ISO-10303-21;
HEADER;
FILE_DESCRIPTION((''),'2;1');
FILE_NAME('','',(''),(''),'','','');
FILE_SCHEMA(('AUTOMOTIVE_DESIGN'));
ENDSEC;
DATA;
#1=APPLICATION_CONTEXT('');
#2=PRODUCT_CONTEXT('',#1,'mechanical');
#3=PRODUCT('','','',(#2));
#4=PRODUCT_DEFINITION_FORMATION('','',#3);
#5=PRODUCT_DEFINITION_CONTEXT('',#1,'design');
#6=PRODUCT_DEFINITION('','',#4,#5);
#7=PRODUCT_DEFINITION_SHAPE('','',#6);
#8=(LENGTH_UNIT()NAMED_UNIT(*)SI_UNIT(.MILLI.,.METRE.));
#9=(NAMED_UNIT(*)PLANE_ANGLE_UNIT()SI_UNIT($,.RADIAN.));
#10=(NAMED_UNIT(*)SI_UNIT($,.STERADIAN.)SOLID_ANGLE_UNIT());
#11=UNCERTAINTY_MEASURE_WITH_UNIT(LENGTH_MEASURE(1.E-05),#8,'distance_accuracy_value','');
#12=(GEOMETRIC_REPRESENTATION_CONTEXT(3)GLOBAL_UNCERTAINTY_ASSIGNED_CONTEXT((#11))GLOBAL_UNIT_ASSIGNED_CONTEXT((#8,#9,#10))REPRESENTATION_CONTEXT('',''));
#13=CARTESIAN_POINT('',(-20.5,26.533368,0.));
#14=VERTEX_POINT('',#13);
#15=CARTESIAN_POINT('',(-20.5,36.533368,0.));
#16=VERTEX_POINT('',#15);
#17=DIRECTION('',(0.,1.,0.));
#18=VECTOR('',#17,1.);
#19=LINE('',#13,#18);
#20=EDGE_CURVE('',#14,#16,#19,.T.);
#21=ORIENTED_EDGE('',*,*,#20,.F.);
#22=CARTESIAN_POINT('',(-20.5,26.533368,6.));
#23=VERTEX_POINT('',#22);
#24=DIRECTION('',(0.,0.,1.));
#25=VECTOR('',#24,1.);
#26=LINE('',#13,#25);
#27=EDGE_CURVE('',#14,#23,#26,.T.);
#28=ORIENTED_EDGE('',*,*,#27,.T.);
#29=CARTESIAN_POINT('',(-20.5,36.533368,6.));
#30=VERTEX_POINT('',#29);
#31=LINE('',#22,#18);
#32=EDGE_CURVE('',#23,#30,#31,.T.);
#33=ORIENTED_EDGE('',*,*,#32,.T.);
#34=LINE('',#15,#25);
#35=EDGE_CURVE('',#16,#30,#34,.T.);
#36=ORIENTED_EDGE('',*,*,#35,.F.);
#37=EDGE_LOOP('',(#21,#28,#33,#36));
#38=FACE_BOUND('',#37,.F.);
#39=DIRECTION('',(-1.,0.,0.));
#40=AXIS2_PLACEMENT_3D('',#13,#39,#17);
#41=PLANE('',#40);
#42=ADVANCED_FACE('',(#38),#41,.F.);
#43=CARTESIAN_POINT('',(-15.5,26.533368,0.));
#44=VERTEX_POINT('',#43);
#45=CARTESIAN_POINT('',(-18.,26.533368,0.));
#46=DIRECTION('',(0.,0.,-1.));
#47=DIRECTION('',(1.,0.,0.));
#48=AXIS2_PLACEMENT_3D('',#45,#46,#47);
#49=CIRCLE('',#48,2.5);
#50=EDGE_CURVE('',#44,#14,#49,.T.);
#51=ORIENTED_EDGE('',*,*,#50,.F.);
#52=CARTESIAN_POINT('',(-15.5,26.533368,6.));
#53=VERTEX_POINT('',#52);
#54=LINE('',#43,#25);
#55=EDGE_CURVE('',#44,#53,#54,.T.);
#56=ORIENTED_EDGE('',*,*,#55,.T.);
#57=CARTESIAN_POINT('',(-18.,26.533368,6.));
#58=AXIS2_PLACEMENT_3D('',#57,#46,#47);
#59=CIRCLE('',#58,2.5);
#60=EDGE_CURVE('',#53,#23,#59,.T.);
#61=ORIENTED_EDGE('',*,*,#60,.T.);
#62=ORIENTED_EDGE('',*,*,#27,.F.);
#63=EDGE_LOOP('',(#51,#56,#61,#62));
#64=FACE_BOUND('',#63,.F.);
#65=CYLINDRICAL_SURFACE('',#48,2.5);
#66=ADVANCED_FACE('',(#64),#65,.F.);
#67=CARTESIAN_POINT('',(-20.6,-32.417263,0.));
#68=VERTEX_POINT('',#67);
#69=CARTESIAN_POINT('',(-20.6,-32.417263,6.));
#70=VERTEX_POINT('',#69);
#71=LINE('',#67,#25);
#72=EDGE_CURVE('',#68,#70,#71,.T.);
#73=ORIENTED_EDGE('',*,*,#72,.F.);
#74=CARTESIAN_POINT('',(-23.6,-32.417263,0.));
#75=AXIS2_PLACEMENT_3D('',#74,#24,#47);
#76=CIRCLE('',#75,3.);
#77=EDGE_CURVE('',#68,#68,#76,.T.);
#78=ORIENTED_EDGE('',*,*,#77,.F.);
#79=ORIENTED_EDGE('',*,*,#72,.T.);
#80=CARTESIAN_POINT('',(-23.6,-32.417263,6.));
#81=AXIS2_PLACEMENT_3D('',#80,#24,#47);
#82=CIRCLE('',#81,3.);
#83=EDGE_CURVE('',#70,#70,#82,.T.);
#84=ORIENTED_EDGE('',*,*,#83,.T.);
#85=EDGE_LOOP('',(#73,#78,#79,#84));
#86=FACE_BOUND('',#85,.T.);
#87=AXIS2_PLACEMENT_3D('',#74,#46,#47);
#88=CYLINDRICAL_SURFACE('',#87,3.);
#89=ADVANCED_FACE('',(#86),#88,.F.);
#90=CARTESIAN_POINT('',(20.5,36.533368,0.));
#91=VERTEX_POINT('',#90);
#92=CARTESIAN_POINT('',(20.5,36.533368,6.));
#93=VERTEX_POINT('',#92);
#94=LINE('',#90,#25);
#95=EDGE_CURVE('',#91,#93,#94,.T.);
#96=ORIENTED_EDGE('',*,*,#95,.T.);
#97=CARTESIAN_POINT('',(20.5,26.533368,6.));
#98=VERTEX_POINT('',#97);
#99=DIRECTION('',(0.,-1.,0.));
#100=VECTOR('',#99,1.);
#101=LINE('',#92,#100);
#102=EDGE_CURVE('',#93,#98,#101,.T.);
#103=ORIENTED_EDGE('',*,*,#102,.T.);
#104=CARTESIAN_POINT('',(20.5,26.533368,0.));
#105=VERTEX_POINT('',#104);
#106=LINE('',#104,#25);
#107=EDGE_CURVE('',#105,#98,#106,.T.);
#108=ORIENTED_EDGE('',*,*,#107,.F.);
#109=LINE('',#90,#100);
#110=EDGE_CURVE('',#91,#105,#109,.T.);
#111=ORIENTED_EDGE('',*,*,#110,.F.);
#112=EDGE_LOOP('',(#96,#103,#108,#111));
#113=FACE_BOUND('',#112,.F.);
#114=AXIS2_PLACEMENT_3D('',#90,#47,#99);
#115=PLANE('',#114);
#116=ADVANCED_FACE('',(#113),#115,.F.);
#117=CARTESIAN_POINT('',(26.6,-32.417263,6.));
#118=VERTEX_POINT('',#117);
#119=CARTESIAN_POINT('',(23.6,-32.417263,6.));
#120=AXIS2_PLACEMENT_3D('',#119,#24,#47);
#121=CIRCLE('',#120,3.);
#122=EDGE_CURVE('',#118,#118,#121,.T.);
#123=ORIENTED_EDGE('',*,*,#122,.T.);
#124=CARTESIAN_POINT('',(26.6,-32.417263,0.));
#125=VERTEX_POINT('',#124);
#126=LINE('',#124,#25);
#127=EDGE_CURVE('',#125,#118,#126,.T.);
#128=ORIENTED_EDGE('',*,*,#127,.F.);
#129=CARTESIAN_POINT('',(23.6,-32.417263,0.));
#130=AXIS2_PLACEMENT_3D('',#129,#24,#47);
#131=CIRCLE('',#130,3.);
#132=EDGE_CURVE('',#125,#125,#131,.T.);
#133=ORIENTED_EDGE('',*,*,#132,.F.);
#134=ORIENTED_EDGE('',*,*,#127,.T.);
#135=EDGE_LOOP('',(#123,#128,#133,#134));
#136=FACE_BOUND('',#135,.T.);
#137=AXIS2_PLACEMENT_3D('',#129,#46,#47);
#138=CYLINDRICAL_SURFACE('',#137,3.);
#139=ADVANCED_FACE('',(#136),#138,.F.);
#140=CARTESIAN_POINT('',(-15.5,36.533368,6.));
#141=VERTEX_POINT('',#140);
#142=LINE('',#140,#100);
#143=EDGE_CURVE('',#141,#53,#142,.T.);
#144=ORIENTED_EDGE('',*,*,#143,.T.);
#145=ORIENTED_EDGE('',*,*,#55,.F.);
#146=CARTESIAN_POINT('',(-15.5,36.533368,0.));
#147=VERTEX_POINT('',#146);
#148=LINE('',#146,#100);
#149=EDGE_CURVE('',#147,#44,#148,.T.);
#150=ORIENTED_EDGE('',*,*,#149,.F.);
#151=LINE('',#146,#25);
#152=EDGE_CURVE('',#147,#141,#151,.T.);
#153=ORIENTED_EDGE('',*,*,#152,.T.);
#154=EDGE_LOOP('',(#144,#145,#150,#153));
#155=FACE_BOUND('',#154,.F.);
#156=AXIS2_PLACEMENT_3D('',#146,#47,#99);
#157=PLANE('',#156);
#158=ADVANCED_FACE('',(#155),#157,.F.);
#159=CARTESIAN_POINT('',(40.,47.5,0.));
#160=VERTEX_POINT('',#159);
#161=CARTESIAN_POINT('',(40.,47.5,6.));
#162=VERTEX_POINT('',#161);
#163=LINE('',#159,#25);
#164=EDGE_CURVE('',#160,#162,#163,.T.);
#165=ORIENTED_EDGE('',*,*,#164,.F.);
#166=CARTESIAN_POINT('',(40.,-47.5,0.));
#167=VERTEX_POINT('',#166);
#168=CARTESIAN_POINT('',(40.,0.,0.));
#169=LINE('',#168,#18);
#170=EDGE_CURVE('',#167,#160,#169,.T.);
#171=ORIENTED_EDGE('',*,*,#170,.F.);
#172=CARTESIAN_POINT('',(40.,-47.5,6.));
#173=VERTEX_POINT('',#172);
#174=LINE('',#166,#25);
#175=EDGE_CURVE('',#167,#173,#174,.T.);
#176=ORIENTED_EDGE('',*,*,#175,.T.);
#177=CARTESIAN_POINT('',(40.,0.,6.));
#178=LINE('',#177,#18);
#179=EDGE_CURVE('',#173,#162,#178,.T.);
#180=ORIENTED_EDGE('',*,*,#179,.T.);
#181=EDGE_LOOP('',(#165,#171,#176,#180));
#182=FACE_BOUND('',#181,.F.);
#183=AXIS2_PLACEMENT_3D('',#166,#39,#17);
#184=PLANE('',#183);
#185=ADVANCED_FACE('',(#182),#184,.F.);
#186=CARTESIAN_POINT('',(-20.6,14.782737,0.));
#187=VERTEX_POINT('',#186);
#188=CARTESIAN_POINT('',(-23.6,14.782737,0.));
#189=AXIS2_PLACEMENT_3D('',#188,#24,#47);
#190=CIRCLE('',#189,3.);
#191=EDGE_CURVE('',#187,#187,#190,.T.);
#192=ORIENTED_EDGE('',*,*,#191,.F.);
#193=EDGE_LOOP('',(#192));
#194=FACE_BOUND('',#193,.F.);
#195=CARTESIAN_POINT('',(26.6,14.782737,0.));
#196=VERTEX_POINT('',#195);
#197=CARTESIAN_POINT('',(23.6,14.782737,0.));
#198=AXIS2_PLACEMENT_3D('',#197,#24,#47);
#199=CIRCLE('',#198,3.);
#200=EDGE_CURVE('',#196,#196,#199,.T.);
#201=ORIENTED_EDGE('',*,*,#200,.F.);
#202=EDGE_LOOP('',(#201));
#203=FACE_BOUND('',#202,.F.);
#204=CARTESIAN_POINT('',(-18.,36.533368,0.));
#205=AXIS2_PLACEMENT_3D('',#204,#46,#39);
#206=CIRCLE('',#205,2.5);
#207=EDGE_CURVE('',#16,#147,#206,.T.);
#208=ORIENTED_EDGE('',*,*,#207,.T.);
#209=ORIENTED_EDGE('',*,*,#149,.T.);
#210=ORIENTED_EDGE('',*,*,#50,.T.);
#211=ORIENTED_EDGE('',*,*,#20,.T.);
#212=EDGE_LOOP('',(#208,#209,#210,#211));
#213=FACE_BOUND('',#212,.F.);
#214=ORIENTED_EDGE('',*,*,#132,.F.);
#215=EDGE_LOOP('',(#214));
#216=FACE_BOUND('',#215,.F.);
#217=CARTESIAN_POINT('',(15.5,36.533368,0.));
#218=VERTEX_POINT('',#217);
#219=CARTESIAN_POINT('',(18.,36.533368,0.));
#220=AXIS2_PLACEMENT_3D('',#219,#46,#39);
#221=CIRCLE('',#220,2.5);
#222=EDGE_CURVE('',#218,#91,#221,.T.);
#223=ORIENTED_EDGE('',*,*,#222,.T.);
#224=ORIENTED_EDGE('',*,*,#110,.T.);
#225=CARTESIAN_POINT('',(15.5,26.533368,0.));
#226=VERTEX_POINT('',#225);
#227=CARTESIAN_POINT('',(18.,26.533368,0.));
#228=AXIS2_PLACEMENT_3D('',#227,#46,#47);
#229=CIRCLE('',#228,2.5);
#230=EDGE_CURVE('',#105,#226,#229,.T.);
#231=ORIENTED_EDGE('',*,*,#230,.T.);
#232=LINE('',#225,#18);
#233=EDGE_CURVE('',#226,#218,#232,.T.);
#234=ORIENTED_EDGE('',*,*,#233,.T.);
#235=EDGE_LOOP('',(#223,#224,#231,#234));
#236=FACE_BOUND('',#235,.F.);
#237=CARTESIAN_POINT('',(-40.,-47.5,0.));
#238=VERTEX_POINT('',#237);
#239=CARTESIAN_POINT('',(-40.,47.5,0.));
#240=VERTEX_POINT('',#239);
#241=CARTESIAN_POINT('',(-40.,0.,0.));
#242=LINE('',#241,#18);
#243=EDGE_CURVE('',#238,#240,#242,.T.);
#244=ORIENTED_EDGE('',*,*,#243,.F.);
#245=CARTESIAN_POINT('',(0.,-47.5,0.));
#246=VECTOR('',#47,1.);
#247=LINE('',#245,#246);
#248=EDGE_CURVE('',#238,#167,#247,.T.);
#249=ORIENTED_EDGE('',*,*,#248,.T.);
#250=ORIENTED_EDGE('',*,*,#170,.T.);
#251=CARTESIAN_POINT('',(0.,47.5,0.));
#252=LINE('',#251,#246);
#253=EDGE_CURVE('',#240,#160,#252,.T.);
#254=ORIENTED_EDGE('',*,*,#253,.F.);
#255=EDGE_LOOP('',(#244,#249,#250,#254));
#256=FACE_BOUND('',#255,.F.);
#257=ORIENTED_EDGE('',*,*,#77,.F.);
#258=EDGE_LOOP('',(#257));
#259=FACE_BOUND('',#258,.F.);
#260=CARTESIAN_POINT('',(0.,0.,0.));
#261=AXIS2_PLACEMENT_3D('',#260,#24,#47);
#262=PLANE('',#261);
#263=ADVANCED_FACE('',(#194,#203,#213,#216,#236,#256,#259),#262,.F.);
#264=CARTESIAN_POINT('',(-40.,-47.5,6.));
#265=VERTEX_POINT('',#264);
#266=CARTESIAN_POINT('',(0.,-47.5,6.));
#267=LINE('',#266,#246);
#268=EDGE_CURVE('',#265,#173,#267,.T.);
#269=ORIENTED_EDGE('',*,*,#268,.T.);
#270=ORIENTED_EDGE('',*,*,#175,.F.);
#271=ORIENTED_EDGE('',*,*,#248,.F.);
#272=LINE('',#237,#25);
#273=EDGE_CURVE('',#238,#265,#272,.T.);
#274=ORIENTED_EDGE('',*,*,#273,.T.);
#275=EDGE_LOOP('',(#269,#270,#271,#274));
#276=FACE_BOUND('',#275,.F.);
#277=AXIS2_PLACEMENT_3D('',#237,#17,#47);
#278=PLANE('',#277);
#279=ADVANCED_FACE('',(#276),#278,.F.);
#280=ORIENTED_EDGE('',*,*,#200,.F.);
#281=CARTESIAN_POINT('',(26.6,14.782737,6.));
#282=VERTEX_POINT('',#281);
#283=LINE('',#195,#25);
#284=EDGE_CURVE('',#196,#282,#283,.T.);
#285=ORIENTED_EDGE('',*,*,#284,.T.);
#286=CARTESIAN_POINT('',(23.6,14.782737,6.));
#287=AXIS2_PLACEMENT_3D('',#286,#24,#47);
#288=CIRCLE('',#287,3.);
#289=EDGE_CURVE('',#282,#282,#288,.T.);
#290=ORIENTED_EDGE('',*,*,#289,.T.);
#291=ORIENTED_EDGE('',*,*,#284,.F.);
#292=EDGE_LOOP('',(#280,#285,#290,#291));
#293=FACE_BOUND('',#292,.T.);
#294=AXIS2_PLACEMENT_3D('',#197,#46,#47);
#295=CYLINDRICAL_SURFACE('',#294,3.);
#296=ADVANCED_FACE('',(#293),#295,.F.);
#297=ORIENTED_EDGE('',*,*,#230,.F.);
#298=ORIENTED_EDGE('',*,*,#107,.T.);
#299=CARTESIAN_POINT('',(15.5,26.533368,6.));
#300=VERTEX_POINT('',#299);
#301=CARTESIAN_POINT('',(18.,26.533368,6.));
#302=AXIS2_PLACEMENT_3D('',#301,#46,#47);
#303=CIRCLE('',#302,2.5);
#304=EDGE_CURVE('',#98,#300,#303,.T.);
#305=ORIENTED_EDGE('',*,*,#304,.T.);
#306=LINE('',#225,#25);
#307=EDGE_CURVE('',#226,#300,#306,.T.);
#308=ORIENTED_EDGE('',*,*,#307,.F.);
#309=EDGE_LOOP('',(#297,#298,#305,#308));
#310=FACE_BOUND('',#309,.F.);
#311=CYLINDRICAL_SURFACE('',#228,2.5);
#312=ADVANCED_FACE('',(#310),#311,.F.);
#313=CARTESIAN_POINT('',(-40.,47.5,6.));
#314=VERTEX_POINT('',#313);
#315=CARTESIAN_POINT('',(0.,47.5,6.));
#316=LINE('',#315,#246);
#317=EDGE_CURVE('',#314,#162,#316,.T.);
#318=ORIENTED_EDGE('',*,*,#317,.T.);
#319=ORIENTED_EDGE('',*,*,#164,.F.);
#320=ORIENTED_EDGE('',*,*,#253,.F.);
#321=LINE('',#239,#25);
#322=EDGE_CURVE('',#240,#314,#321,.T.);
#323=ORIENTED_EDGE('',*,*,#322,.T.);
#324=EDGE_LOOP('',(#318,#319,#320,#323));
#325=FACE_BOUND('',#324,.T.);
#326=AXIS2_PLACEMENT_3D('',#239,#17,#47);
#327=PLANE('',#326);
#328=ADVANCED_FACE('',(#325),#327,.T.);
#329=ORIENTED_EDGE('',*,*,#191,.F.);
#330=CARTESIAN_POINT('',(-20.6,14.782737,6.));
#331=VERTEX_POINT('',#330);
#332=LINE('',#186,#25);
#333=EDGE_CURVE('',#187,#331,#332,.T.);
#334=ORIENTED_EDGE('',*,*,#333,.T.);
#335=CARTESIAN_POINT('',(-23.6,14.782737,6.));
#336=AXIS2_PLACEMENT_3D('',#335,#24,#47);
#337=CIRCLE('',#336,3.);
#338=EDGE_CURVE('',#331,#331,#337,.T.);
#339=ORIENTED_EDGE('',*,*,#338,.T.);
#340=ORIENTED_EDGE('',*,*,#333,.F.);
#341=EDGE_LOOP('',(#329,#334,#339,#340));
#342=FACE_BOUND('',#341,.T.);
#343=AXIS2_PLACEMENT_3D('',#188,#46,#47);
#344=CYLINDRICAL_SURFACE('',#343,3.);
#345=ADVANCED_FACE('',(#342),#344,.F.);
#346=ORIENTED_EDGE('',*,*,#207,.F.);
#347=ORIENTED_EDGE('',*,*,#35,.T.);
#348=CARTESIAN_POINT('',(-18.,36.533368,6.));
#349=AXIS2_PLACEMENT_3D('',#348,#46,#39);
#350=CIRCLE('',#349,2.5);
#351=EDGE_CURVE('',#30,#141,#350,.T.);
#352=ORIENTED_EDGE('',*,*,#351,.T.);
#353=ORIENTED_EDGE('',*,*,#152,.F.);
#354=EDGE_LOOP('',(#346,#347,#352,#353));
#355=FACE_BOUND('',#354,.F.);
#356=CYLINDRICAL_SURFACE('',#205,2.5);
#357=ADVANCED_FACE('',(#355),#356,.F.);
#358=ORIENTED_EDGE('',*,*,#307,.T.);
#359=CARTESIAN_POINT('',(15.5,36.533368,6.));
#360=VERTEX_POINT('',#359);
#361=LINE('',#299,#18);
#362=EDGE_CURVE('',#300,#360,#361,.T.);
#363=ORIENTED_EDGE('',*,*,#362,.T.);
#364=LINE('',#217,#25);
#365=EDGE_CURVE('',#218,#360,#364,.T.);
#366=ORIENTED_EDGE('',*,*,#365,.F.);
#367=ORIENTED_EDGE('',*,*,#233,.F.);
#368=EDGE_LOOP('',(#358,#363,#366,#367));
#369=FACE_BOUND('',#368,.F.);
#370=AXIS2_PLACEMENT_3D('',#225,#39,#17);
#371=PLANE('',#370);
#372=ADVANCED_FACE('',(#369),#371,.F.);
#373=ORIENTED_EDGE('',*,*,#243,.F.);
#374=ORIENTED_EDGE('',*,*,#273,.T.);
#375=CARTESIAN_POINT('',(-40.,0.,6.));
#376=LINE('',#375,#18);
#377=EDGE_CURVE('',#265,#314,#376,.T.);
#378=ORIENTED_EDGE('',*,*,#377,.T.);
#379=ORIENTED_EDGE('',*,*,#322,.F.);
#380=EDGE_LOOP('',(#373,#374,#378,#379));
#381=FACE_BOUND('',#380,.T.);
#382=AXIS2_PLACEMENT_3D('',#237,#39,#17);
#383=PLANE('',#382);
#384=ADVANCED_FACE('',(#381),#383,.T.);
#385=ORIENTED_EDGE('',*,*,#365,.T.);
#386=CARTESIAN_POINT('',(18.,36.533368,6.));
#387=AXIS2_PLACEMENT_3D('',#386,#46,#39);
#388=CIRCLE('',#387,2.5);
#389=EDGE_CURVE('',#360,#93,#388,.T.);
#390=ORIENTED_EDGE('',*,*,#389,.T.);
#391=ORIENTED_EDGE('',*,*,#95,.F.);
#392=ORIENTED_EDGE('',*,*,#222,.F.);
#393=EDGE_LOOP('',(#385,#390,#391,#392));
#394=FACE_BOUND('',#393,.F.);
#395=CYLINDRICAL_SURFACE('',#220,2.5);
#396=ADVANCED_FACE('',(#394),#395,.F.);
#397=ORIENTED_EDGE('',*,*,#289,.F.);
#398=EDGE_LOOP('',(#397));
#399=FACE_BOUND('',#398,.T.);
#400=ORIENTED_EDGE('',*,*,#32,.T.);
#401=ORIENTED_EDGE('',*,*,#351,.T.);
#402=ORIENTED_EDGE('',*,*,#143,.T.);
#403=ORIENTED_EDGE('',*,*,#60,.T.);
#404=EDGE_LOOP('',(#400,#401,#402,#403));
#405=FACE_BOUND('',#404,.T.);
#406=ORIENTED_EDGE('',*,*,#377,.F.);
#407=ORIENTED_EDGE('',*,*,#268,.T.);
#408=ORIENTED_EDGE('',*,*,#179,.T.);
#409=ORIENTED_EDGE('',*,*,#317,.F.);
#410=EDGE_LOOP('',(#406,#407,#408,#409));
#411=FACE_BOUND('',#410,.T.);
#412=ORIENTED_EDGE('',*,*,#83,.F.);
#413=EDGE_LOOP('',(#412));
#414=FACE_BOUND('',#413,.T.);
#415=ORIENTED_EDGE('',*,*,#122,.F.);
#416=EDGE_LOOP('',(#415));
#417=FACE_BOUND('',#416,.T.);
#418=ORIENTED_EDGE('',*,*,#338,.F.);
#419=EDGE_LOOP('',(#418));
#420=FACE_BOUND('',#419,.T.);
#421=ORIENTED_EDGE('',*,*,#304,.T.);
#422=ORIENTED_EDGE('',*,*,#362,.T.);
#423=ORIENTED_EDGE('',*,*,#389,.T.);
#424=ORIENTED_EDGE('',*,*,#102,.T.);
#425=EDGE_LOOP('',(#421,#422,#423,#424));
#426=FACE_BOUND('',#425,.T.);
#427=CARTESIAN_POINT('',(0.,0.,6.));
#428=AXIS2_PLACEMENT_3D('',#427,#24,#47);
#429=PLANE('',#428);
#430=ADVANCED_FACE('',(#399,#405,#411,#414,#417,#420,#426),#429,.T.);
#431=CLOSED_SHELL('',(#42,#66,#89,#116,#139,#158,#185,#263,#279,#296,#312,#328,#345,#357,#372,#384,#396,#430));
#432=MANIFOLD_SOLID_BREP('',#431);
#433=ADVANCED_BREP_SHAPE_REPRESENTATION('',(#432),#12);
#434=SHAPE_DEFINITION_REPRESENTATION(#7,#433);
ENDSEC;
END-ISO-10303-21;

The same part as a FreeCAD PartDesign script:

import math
import FreeCAD as App
import Part
import Sketcher

doc = App.newDocument("Part")
body = doc.addObject("PartDesign::Body", "Body")

sketch1 = body.newObject("Sketcher::SketchObject", "Sketch")
sketch1.AttachmentSupport = (doc.getObject("XY_Plane"), [""])
sketch1.MapMode = "FlatFace"
sketch1.addGeometry([
    Part.LineSegment(App.Vector(-40, 47.5, 0), App.Vector(-40, -47.5, 0)),
    Part.LineSegment(App.Vector(-40, -47.5, 0), App.Vector(40, -47.5, 0)),
    Part.LineSegment(App.Vector(40, -47.5, 0), App.Vector(40, 47.5, 0)),
    Part.LineSegment(App.Vector(40, 47.5, 0), App.Vector(-40, 47.5, 0)),
    Part.Circle(App.Vector(-23.6, -32.4, 0), App.Vector(0, 0, 1), 3),
    Part.Circle(App.Vector(23.6, -32.4, 0), App.Vector(0, 0, 1), 3),
    Part.Circle(App.Vector(-23.6, 14.8, 0), App.Vector(0, 0, 1), 3),
    Part.LineSegment(App.Vector(-20.5, 26.5, 0), App.Vector(-20.5, 36.5, 0)),
    Part.ArcOfCircle(Part.Circle(App.Vector(-18, 36.5, 0), App.Vector(0, 0, 1), 2.5), math.radians(0), math.radians(180)),
    Part.LineSegment(App.Vector(-15.5, 36.5, 0), App.Vector(-15.5, 26.5, 0)),
    Part.ArcOfCircle(Part.Circle(App.Vector(-18, 26.5, 0), App.Vector(0, 0, 1), 2.5), math.radians(180), math.radians(360)),
    Part.Circle(App.Vector(23.6, 14.8, 0), App.Vector(0, 0, 1), 3),
    Part.LineSegment(App.Vector(20.5, 36.5, 0), App.Vector(20.5, 26.5, 0)),
    Part.ArcOfCircle(Part.Circle(App.Vector(18, 26.5, 0), App.Vector(0, 0, 1), 2.5), math.radians(180), math.radians(360)),
    Part.LineSegment(App.Vector(15.5, 26.5, 0), App.Vector(15.5, 36.5, 0)),
    Part.ArcOfCircle(Part.Circle(App.Vector(18, 36.5, 0), App.Vector(0, 0, 1), 2.5), math.radians(0), math.radians(180)),
], False)
sketch1.addConstraint([
    Sketcher.Constraint("Coincident", 0, 2, 1, 1),
    Sketcher.Constraint("Coincident", 1, 2, 2, 1),
    Sketcher.Constraint("Coincident", 2, 2, 3, 1),
    Sketcher.Constraint("Coincident", 3, 2, 0, 1),
    Sketcher.Constraint("Tangent", 7, 2, 8, 2),
    Sketcher.Constraint("Tangent", 8, 1, 9, 1),
    Sketcher.Constraint("Tangent", 9, 2, 10, 2),
    Sketcher.Constraint("Tangent", 10, 1, 7, 1),
    Sketcher.Constraint("Tangent", 12, 2, 13, 2),
    Sketcher.Constraint("Tangent", 13, 1, 14, 1),
    Sketcher.Constraint("Tangent", 14, 2, 15, 2),
    Sketcher.Constraint("Tangent", 15, 1, 12, 1),
    Sketcher.Constraint("Vertical", 0),
    Sketcher.Constraint("Horizontal", 1),
    Sketcher.Constraint("Vertical", 2),
    Sketcher.Constraint("Horizontal", 3),
    Sketcher.Constraint("Vertical", 7),
    Sketcher.Constraint("Vertical", 9),
    Sketcher.Constraint("Vertical", 12),
    Sketcher.Constraint("Vertical", 14),
    Sketcher.Constraint("Equal", 4, 5),
    Sketcher.Constraint("Equal", 5, 6),
    Sketcher.Constraint("Equal", 6, 11),
    Sketcher.Constraint("Equal", 10, 13),
    Sketcher.Constraint("Symmetric", 0, 2, 2, 2, -1, 1),
    Sketcher.Constraint("Symmetric", 4, 3, 5, 3, -2),
    Sketcher.Constraint("Symmetric", 6, 3, 11, 3, -2),
    Sketcher.Constraint("Symmetric", 10, 3, 13, 3, -2),
    Sketcher.Constraint("Horizontal", 8, 3, 15, 3),
    Sketcher.Constraint("Vertical", 4, 3, 6, 3),
    Sketcher.Constraint("Diameter", 4, 6.0),
    Sketcher.Constraint("Radius", 8, 2.5),
    Sketcher.Constraint("DistanceX", 1, 1, 1, 2, 80.0),
    Sketcher.Constraint("DistanceY", 0, 2, 0, 1, 95.0),
    Sketcher.Constraint("DistanceY", 7, 1, 7, 2, 10.0),
    Sketcher.Constraint("DistanceX", 8, 3, -1, 1, 18.0),
    Sketcher.Constraint("DistanceX", 4, 3, -1, 1, 23.6),
    Sketcher.Constraint("DistanceY", 4, 3, 6, 3, 47.2),
    Sketcher.Constraint("DistanceY", -1, 1, 8, 3, 36.533368),
    Sketcher.Constraint("DistanceY", 6, 3, 8, 3, 21.750631),
])
pad1 = body.newObject("PartDesign::Pad", "Pad")
pad1.Profile = sketch1
pad1.Length = 6

doc.recompute()
